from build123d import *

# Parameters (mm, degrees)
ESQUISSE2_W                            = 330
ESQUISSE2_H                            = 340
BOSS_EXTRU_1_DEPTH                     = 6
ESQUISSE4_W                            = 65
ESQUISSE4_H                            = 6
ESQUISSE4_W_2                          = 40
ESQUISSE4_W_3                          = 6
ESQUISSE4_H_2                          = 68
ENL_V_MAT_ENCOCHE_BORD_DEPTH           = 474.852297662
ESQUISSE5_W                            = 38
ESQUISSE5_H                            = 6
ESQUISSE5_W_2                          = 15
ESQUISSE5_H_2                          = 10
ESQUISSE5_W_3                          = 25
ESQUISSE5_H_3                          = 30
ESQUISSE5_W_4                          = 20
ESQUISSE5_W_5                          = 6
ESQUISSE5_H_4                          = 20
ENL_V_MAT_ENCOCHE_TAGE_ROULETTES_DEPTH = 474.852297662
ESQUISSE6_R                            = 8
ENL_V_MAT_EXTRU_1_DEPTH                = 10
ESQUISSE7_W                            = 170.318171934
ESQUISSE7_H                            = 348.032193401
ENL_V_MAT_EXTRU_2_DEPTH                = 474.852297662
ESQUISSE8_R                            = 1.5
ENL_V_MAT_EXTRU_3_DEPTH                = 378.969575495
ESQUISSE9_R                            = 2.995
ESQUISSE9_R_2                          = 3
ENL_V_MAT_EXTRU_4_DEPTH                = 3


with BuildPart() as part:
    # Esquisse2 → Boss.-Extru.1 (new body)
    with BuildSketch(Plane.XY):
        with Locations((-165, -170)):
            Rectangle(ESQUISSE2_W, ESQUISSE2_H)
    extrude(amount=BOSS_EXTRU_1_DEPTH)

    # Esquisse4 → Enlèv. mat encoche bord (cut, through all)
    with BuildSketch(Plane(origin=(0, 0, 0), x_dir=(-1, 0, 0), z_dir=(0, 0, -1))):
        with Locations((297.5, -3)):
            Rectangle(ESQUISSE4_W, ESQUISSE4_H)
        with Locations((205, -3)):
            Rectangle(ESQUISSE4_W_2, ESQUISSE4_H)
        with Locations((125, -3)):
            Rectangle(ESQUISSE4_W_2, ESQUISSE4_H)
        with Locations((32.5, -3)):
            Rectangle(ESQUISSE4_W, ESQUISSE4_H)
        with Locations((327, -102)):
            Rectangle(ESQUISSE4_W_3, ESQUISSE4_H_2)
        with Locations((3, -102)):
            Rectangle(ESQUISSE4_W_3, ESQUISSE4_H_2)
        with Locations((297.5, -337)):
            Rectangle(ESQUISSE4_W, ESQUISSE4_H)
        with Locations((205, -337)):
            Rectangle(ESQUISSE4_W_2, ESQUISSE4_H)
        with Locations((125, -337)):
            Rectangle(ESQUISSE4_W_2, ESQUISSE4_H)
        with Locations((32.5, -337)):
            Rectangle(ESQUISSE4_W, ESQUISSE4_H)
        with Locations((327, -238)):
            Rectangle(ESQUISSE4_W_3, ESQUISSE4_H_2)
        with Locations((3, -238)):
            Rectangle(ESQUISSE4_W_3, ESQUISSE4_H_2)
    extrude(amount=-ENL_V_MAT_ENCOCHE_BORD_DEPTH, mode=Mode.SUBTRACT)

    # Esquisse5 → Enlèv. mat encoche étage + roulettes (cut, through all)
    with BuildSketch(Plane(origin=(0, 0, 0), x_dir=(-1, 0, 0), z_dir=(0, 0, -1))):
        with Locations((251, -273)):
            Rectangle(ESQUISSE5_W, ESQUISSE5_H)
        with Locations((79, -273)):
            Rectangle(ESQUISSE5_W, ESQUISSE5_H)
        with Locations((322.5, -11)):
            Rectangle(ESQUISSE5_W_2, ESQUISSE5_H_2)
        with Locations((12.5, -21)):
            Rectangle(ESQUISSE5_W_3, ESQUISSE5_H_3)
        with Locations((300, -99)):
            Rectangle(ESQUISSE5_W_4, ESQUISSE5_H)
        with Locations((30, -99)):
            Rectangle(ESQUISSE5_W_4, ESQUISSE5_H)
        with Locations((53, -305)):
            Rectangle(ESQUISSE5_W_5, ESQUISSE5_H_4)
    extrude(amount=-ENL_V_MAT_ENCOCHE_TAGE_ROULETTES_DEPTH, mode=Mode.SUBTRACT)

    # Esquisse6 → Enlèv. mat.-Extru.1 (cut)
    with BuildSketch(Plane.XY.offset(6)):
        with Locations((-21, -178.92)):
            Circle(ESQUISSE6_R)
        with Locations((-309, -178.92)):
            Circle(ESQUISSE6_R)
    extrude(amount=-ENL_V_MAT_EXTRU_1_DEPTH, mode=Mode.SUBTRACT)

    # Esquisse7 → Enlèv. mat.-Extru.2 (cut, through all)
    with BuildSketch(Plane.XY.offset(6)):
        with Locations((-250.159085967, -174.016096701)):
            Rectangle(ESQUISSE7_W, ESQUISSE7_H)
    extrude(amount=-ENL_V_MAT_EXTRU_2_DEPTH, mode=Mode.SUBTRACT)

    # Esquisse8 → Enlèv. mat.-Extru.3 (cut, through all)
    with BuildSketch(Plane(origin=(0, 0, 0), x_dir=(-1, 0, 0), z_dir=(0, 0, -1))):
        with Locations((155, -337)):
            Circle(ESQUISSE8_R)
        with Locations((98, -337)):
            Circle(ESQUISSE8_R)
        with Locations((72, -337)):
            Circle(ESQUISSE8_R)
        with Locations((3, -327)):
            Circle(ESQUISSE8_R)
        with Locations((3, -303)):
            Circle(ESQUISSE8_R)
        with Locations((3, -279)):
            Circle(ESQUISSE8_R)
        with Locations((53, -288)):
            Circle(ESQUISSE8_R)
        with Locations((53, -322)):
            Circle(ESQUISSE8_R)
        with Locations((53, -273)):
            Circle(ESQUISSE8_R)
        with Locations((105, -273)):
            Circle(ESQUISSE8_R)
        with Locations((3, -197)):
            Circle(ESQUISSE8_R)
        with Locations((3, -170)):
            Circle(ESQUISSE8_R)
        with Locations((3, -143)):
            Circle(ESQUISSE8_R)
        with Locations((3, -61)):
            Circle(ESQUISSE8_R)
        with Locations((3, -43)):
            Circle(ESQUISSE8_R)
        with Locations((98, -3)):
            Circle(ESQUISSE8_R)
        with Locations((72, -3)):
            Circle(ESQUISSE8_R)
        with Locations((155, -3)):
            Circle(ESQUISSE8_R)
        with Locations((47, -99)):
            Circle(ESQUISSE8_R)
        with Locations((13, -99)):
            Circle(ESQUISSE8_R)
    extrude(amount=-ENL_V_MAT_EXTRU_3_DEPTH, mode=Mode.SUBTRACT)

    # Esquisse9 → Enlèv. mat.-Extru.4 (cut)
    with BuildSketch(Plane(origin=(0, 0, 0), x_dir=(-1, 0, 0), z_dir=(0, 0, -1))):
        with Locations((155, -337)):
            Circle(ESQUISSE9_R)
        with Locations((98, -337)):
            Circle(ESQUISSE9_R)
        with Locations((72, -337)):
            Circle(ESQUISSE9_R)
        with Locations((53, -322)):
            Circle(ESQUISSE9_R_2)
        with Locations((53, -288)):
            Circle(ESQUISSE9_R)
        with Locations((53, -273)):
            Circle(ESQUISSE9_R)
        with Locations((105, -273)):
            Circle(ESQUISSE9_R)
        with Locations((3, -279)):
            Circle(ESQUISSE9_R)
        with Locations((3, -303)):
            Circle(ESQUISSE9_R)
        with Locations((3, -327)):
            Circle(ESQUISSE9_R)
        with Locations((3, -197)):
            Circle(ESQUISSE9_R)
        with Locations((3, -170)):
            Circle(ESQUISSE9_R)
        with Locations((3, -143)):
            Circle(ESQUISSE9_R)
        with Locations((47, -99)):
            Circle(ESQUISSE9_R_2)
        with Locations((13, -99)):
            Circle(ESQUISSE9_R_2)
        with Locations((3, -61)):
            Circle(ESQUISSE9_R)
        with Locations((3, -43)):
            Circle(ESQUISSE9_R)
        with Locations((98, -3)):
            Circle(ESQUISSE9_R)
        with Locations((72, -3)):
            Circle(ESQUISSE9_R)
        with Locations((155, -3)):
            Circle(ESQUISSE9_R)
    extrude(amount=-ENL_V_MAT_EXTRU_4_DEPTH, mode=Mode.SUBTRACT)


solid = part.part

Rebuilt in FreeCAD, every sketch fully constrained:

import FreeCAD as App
import Part
import Sketcher
from FreeCAD import Vector
Q = App.Units.Quantity


def add_polygon(sketch, points):
    """Adds a closed chain of lines whose ends are joined by coincident constraints."""
    first, n = sketch.GeometryCount, len(points)
    for a, b in zip(points, points[1:] + points[:1]):
        sketch.addGeometry(Part.LineSegment(App.Vector(*a, 0), App.Vector(*b, 0)), False)
    for i in range(n):
        sketch.addConstraint(Sketcher.Constraint("Coincident", first + i, 2, first + (i + 1) % n, 1))

doc = App.newDocument("Part")
body = doc.addObject("PartDesign::Body", "Body")

# Sketch on XY plane
sketch1 = body.newObject("Sketcher::SketchObject", "Sketch")
sketch1.AttachmentSupport = (doc.getObject("XY_Plane"), [""])
sketch1.MapMode = "FlatFace"
add_polygon(sketch1, [(-330, 0), (-330, -340), (0, -340), (0, 0)])  # lines 0-3
sketch1.addConstraint(Sketcher.Constraint("Vertical", 0))
sketch1.addConstraint(Sketcher.Constraint("Horizontal", 1))
sketch1.addConstraint(Sketcher.Constraint("Vertical", 2))
sketch1.addConstraint(Sketcher.Constraint("Horizontal", 3))
sketch1.addConstraint(Sketcher.Constraint("Coincident", 2, 2, -1, 1))
sketch1.addConstraint(Sketcher.Constraint("DistanceX", 1, 1, 1, 2, Q("330 mm")))
sketch1.addConstraint(Sketcher.Constraint("DistanceY", 0, 2, 0, 1, Q("340 mm")))
pad1 = body.newObject("PartDesign::Pad", "Pad")
pad1.Profile = sketch1
pad1.Length = 6

# Sketch on XY plane
sketch2 = body.newObject("Sketcher::SketchObject", "Sketch001")
sketch2.AttachmentSupport = (doc.getObject("XY_Plane"), [""])
sketch2.MapMode = "FlatFace"
add_polygon(sketch2, [(-265, 0), (-265, -6), (-330, -6), (-330, 0)])  # lines 0-3
add_polygon(sketch2, [(-185, 0), (-185, -6), (-225, -6), (-225, 0)])  # lines 4-7
add_polygon(sketch2, [(-105, 0), (-105, -6), (-145, -6), (-145, 0)])  # lines 8-11
add_polygon(sketch2, [(0, 0), (0, -6), (-65, -6), (-65, 0)])  # lines 12-15
add_polygon(sketch2, [(-324, -68), (-324, -136), (-330, -136), (-330, -68)])  # lines 16-19
add_polygon(sketch2, [(0, -68), (0, -136), (-6, -136), (-6, -68)])  # lines 20-23
add_polygon(sketch2, [(-265, -334), (-265, -340), (-330, -340), (-330, -334)])  # lines 24-27
add_polygon(sketch2, [(-185, -334), (-185, -340), (-225, -340), (-225, -334)])  # lines 28-31
add_polygon(sketch2, [(-105, -334), (-105, -340), (-145, -340), (-145, -334)])  # lines 32-35
add_polygon(sketch2, [(0, -334), (0, -340), (-65, -340), (-65, -334)])  # lines 36-39
add_polygon(sketch2, [(-324, -204), (-324, -272), (-330, -272), (-330, -204)])  # lines 40-43
add_polygon(sketch2, [(0, -204), (0, -272), (-6, -272), (-6, -204)])  # lines 44-47
sketch2.addConstraint(Sketcher.Constraint("Vertical", 0))
sketch2.addConstraint(Sketcher.Constraint("Horizontal", 1))
sketch2.addConstraint(Sketcher.Constraint("Vertical", 2))
sketch2.addConstraint(Sketcher.Constraint("Horizontal", 3))
sketch2.addConstraint(Sketcher.Constraint("Vertical", 4))
sketch2.addConstraint(Sketcher.Constraint("Horizontal", 5))
sketch2.addConstraint(Sketcher.Constraint("Vertical", 6))
sketch2.addConstraint(Sketcher.Constraint("Horizontal", 7))
sketch2.addConstraint(Sketcher.Constraint("Vertical", 8))
sketch2.addConstraint(Sketcher.Constraint("Horizontal", 9))
sketch2.addConstraint(Sketcher.Constraint("Vertical", 10))
sketch2.addConstraint(Sketcher.Constraint("Horizontal", 11))
sketch2.addConstraint(Sketcher.Constraint("Vertical", 12))
sketch2.addConstraint(Sketcher.Constraint("Horizontal", 13))
sketch2.addConstraint(Sketcher.Constraint("Vertical", 14))
sketch2.addConstraint(Sketcher.Constraint("Horizontal", 15))
sketch2.addConstraint(Sketcher.Constraint("Vertical", 16))
sketch2.addConstraint(Sketcher.Constraint("Horizontal", 17))
sketch2.addConstraint(Sketcher.Constraint("Vertical", 18))
sketch2.addConstraint(Sketcher.Constraint("Horizontal", 19))
sketch2.addConstraint(Sketcher.Constraint("Vertical", 20))
sketch2.addConstraint(Sketcher.Constraint("Horizontal", 21))
sketch2.addConstraint(Sketcher.Constraint("Vertical", 22))
sketch2.addConstraint(Sketcher.Constraint("Horizontal", 23))
sketch2.addConstraint(Sketcher.Constraint("Vertical", 24))
sketch2.addConstraint(Sketcher.Constraint("Horizontal", 25))
sketch2.addConstraint(Sketcher.Constraint("Vertical", 26))
sketch2.addConstraint(Sketcher.Constraint("Horizontal", 27))
sketch2.addConstraint(Sketcher.Constraint("Vertical", 28))
sketch2.addConstraint(Sketcher.Constraint("Horizontal", 29))
sketch2.addConstraint(Sketcher.Constraint("Vertical", 30))
sketch2.addConstraint(Sketcher.Constraint("Horizontal", 31))
sketch2.addConstraint(Sketcher.Constraint("Vertical", 32))
sketch2.addConstraint(Sketcher.Constraint("Horizontal", 33))
sketch2.addConstraint(Sketcher.Constraint("Vertical", 34))
sketch2.addConstraint(Sketcher.Constraint("Horizontal", 35))
sketch2.addConstraint(Sketcher.Constraint("Vertical", 36))
sketch2.addConstraint(Sketcher.Constraint("Horizontal", 37))
sketch2.addConstraint(Sketcher.Constraint("Vertical", 38))
sketch2.addConstraint(Sketcher.Constraint("Horizontal", 39))
sketch2.addConstraint(Sketcher.Constraint("Vertical", 40))
sketch2.addConstraint(Sketcher.Constraint("Horizontal", 41))
sketch2.addConstraint(Sketcher.Constraint("Vertical", 42))
sketch2.addConstraint(Sketcher.Constraint("Horizontal", 43))
sketch2.addConstraint(Sketcher.Constraint("Vertical", 44))
sketch2.addConstraint(Sketcher.Constraint("Horizontal", 45))
sketch2.addConstraint(Sketcher.Constraint("Vertical", 46))
sketch2.addConstraint(Sketcher.Constraint("Horizontal", 47))
sketch2.addConstraint(Sketcher.Constraint("Coincident", 15, 2, -1, 1))
sketch2.addConstraint(Sketcher.Constraint("PointOnObject", 2, 2, -1))
sketch2.addConstraint(Sketcher.Constraint("PointOnObject", 6, 2, -1))
sketch2.addConstraint(Sketcher.Constraint("PointOnObject", 10, 2, -1))
sketch2.addConstraint(Sketcher.Constraint("PointOnObject", 20, 2, -2))
sketch2.addConstraint(Sketcher.Constraint("PointOnObject", 36, 2, -2))
sketch2.addConstraint(Sketcher.Constraint("PointOnObject", 44, 2, -2))
sketch2.addConstraint(Sketcher.Constraint("Horizontal", 1, 2, 4, 2))
sketch2.addConstraint(Sketcher.Constraint("Horizontal", 5, 2, 8, 2))
sketch2.addConstraint(Sketcher.Constraint("Horizontal", 9, 2, 12, 2))
sketch2.addConstraint(Sketcher.Constraint("Horizontal", 17, 2, 20, 2))
sketch2.addConstraint(Sketcher.Constraint("Horizontal", 19, 2, 22, 2))
sketch2.addConstraint(Sketcher.Constraint("Horizontal", 25, 2, 28, 2))
sketch2.addConstraint(Sketcher.Constraint("Horizontal", 27, 2, 30, 2))
sketch2.addConstraint(Sketcher.Constraint("Horizontal", 29, 2, 32, 2))
sketch2.addConstraint(Sketcher.Constraint("Horizontal", 31, 2, 34, 2))
sketch2.addConstraint(Sketcher.Constraint("Horizontal", 33, 2, 36, 2))
sketch2.addConstraint(Sketcher.Constraint("Horizontal", 35, 2, 38, 2))
sketch2.addConstraint(Sketcher.Constraint("Horizontal", 41, 2, 44, 2))
sketch2.addConstraint(Sketcher.Constraint("Horizontal", 43, 2, 46, 2))
sketch2.addConstraint(Sketcher.Constraint("Vertical", 2, 2, 17, 2))
sketch2.addConstraint(Sketcher.Constraint("Vertical", 3, 2, 24, 2))
sketch2.addConstraint(Sketcher.Constraint("Vertical", 18, 2, 25, 2))
sketch2.addConstraint(Sketcher.Constraint("Vertical", 7, 2, 28, 2))
sketch2.addConstraint(Sketcher.Constraint("Vertical", 6, 2, 29, 2))
sketch2.addConstraint(Sketcher.Constraint("Vertical", 11, 2, 32, 2))
sketch2.addConstraint(Sketcher.Constraint("Vertical", 10, 2, 33, 2))
sketch2.addConstraint(Sketcher.Constraint("Vertical", 14, 2, 37, 2))
sketch2.addConstraint(Sketcher.Constraint("Vertical", 19, 2, 40, 2))
sketch2.addConstraint(Sketcher.Constraint("Vertical", 26, 2, 41, 2))
sketch2.addConstraint(Sketcher.Constraint("Vertical", 22, 2, 45, 2))
sketch2.addConstraint(Sketcher.Constraint("Equal", 7, 9))
sketch2.addConstraint(Sketcher.Constraint("Equal", 3, 13))
sketch2.addConstraint(Sketcher.Constraint("Equal", 19, 21))
sketch2.addConstraint(Sketcher.Constraint("Equal", 47, 0))
sketch2.addConstraint(Sketcher.Constraint("Equal", 14, 24))
sketch2.addConstraint(Sketcher.Constraint("Equal", 22, 40))
sketch2.addConstraint(Sketcher.Constraint("DistanceX", 1, 2, 1, 1, Q("65 mm")))
sketch2.addConstraint(Sketcher.Constraint("DistanceX", 5, 2, 5, 1, Q("40 mm")))
sketch2.addConstraint(Sketcher.Constraint("DistanceX", 17, 2, 17, 1, Q("6 mm")))
sketch2.addConstraint(Sketcher.Constraint("DistanceY", 16, 2, 16, 1, Q("68 mm")))
sketch2.addConstraint(Sketcher.Constraint("DistanceX", 0, 2, -1, 1, Q("265 mm")))
sketch2.addConstraint(Sketcher.Constraint("DistanceX", 4, 2, -1, 1, Q("185 mm")))
sketch2.addConstraint(Sketcher.Constraint("DistanceX", 8, 2, -1, 1, Q("105 mm")))
sketch2.addConstraint(Sketcher.Constraint("DistanceY", 16, 2, -1, 1, Q("136 mm")))
sketch2.addConstraint(Sketcher.Constraint("DistanceY", 24, 2, -1, 1, Q("340 mm")))
sketch2.addConstraint(Sketcher.Constraint("DistanceY", 40, 2, -1, 1, Q("272 mm")))
pocket1 = body.newObject("PartDesign::Pocket", "Pocket")
pocket1.Profile = sketch2
pocket1.Type = "ThroughAll"
pocket1.Reversed = True

# Sketch on XY plane
sketch3 = body.newObject("Sketcher::SketchObject", "Sketch002")
sketch3.AttachmentSupport = (doc.getObject("XY_Plane"), [""])
sketch3.MapMode = "FlatFace"
add_polygon(sketch3, [(-232, -270), (-232, -276), (-270, -276), (-270, -270)])  # lines 0-3
add_polygon(sketch3, [(-60, -270), (-60, -276), (-98, -276), (-98, -270)])  # lines 4-7
add_polygon(sketch3, [(-315, -6), (-315, -16), (-330, -16), (-330, -6)])  # lines 8-11
add_polygon(sketch3, [(0, -6), (0, -36), (-25, -36), (-25, -6)])  # lines 12-15
add_polygon(sketch3, [(-290, -96), (-290, -102), (-310, -102), (-310, -96)])  # lines 16-19
add_polygon(sketch3, [(-20, -96), (-20, -102), (-40, -102), (-40, -96)])  # lines 20-23
add_polygon(sketch3, [(-50, -295), (-50, -315), (-56, -315), (-56, -295)])  # lines 24-27
sketch3.addConstraint(Sketcher.Constraint("Vertical", 0))
sketch3.addConstraint(Sketcher.Constraint("Horizontal", 1))
sketch3.addConstraint(Sketcher.Constraint("Vertical", 2))
sketch3.addConstraint(Sketcher.Constraint("Horizontal", 3))
sketch3.addConstraint(Sketcher.Constraint("Vertical", 4))
sketch3.addConstraint(Sketcher.Constraint("Horizontal", 5))
sketch3.addConstraint(Sketcher.Constraint("Vertical", 6))
sketch3.addConstraint(Sketcher.Constraint("Horizontal", 7))
sketch3.addConstraint(Sketcher.Constraint("Vertical", 8))
sketch3.addConstraint(Sketcher.Constraint("Horizontal", 9))
sketch3.addConstraint(Sketcher.Constraint("Vertical", 10))
sketch3.addConstraint(Sketcher.Constraint("Horizontal", 11))
sketch3.addConstraint(Sketcher.Constraint("Vertical", 12))
sketch3.addConstraint(Sketcher.Constraint("Horizontal", 13))
sketch3.addConstraint(Sketcher.Constraint("Vertical", 14))
sketch3.addConstraint(Sketcher.Constraint("Horizontal", 15))
sketch3.addConstraint(Sketcher.Constraint("Vertical", 16))
sketch3.addConstraint(Sketcher.Constraint("Horizontal", 17))
sketch3.addConstraint(Sketcher.Constraint("Vertical", 18))
sketch3.addConstraint(Sketcher.Constraint("Horizontal", 19))
sketch3.addConstraint(Sketcher.Constraint("Vertical", 20))
sketch3.addConstraint(Sketcher.Constraint("Horizontal", 21))
sketch3.addConstraint(Sketcher.Constraint("Vertical", 22))
sketch3.addConstraint(Sketcher.Constraint("Horizontal", 23))
sketch3.addConstraint(Sketcher.Constraint("Vertical", 24))
sketch3.addConstraint(Sketcher.Constraint("Horizontal", 25))
sketch3.addConstraint(Sketcher.Constraint("Vertical", 26))
sketch3.addConstraint(Sketcher.Constraint("Horizontal", 27))
sketch3.addConstraint(Sketcher.Constraint("PointOnObject", 12, 2, -2))
sketch3.addConstraint(Sketcher.Constraint("Horizontal", 1, 2, 4, 2))
sketch3.addConstraint(Sketcher.Constraint("Horizontal", 3, 2, 6, 2))
sketch3.addConstraint(Sketcher.Constraint("Horizontal", 11, 2, 14, 2))
sketch3.addConstraint(Sketcher.Constraint("Horizontal", 17, 2, 20, 2))
sketch3.addConstraint(Sketcher.Constraint("Horizontal", 19, 2, 22, 2))
sketch3.addConstraint(Sketcher.Constraint("Equal", 3, 5))
sketch3.addConstraint(Sketcher.Constraint("Equal", 19, 21))
sketch3.addConstraint(Sketcher.Constraint("Equal", 27, 0))
sketch3.addConstraint(Sketcher.Constraint("Equal", 6, 16))
sketch3.addConstraint(Sketcher.Constraint("Equal", 23, 24))
sketch3.addConstraint(Sketcher.Constraint("DistanceX", 1, 2, 1, 1, Q("38 mm")))
sketch3.addConstraint(Sketcher.Constraint("DistanceX", 9, 2, 9, 1, Q("15 mm")))
sketch3.addConstraint(Sketcher.Constraint("DistanceX", 13, 2, 13, 1, Q("25 mm")))
sketch3.addConstraint(Sketcher.Constraint("DistanceX", 17, 2, 17, 1, Q("20 mm")))
sketch3.addConstraint(Sketcher.Constraint("DistanceX", 25, 2, 25, 1, Q("6 mm")))
sketch3.addConstraint(Sketcher.Constraint("DistanceY", 8, 2, 8, 1, Q("10 mm")))
sketch3.addConstraint(Sketcher.Constraint("DistanceY", 12, 2, 12, 1, Q("30 mm")))
sketch3.addConstraint(Sketcher.Constraint("DistanceX", 0, 2, -1, 1, Q("232 mm")))
sketch3.addConstraint(Sketcher.Constraint("DistanceY", 0, 2, -1, 1, Q("276 mm")))
sketch3.addConstraint(Sketcher.Constraint("DistanceX", 4, 2, -1, 1, Q("60 mm")))
sketch3.addConstraint(Sketcher.Constraint("DistanceX", 8, 2, -1, 1, Q("315 mm")))
sketch3.addConstraint(Sketcher.Constraint("DistanceY", 8, 2, -1, 1, Q("16 mm")))
sketch3.addConstraint(Sketcher.Constraint("DistanceX", 16, 2, -1, 1, Q("290 mm")))
sketch3.addConstraint(Sketcher.Constraint("DistanceY", 16, 2, -1, 1, Q("102 mm")))
sketch3.addConstraint(Sketcher.Constraint("DistanceX", 20, 2, -1, 1, Q("20 mm")))
sketch3.addConstraint(Sketcher.Constraint("DistanceX", 24, 2, -1, 1, Q("50 mm")))
sketch3.addConstraint(Sketcher.Constraint("DistanceY", 24, 2, -1, 1, Q("315 mm")))
pocket2 = body.newObject("PartDesign::Pocket", "Pocket001")
pocket2.Profile = sketch3
pocket2.Type = "ThroughAll"
pocket2.Reversed = True

# Sketch on XY plane
sketch4 = body.newObject("Sketcher::SketchObject", "Sketch003")
sketch4.AttachmentSupport = (doc.getObject("XY_Plane"), [""])
sketch4.MapMode = "FlatFace"
sketch4.AttachmentOffset = App.Placement(Vector(0, 0, 6), App.Rotation())
sketch4.addGeometry(Part.Circle(Vector(-21, -179, 0), Vector(0, 0, 1), 8), False)
sketch4.addGeometry(Part.Circle(Vector(-309, -179, 0), Vector(0, 0, 1), 8), False)
sketch4.addConstraint(Sketcher.Constraint("Equal", 0, 1))
sketch4.addConstraint(Sketcher.Constraint("Horizontal", 0, 3, 1, 3))
sketch4.addConstraint(Sketcher.Constraint("Diameter", 0, Q("16 mm")))
sketch4.addConstraint(Sketcher.Constraint("DistanceX", 0, 3, -1, 1, Q("21 mm")))
sketch4.addConstraint(Sketcher.Constraint("DistanceX", 1, 3, -1, 1, Q("309 mm")))
sketch4.addConstraint(Sketcher.Constraint("DistanceY", 0, 3, -1, 1, Q("178.92 mm")))
pocket3 = body.newObject("PartDesign::Pocket", "Pocket002")
pocket3.Profile = sketch4
pocket3.Length = 10

# Sketch on XY plane
sketch5 = body.newObject("Sketcher::SketchObject", "Sketch004")
sketch5.AttachmentSupport = (doc.getObject("XY_Plane"), [""])
sketch5.MapMode = "FlatFace"
sketch5.AttachmentOffset = App.Placement(Vector(0, 0, 6), App.Rotation())
add_polygon(sketch5, [(-335, 0), (-335, -348), (-165, -348), (-165, 0)])  # lines 0-3
sketch5.addConstraint(Sketcher.Constraint("Vertical", 0))
sketch5.addConstraint(Sketcher.Constraint("Horizontal", 1))
sketch5.addConstraint(Sketcher.Constraint("Vertical", 2))
sketch5.addConstraint(Sketcher.Constraint("Horizontal", 3))
sketch5.addConstraint(Sketcher.Constraint("PointOnObject", 2, 2, -1))
sketch5.addConstraint(Sketcher.Constraint("DistanceX", 1, 2, -1, 1, Q("165 mm")))
sketch5.addConstraint(Sketcher.Constraint("DistanceX", 1, 1, 1, 2, Q("170.318172 mm")))
sketch5.addConstraint(Sketcher.Constraint("DistanceY", 0, 2, 0, 1, Q("348.032193 mm")))
pocket4 = body.newObject("PartDesign::Pocket", "Pocket003")
pocket4.Profile = sketch5
pocket4.Type = "ThroughAll"

# Sketch on XY plane
sketch6 = body.newObject("Sketcher::SketchObject", "Sketch005")
sketch6.AttachmentSupport = (doc.getObject("XY_Plane"), [""])
sketch6.MapMode = "FlatFace"
sketch6.addGeometry(Part.Circle(Vector(-155, -337, 0), Vector(0, 0, 1), 1.5), False)
sketch6.addGeometry(Part.Circle(Vector(-98, -337, 0), Vector(0, 0, 1), 1.5), False)
sketch6.addGeometry(Part.Circle(Vector(-72, -337, 0), Vector(0, 0, 1), 1.5), False)
sketch6.addGeometry(Part.Circle(Vector(-3, -327, 0), Vector(0, 0, 1), 1.5), False)
sketch6.addGeometry(Part.Circle(Vector(-3, -303, 0), Vector(0, 0, 1), 1.5), False)
sketch6.addGeometry(Part.Circle(Vector(-3, -279, 0), Vector(0, 0, 1), 1.5), False)
sketch6.addGeometry(Part.Circle(Vector(-53, -288, 0), Vector(0, 0, 1), 1.5), False)
sketch6.addGeometry(Part.Circle(Vector(-53, -322, 0), Vector(0, 0, 1), 1.5), False)
sketch6.addGeometry(Part.Circle(Vector(-53, -273, 0), Vector(0, 0, 1), 1.5), False)
sketch6.addGeometry(Part.Circle(Vector(-105, -273, 0), Vector(0, 0, 1), 1.5), False)
sketch6.addGeometry(Part.Circle(Vector(-3, -197, 0), Vector(0, 0, 1), 1.5), False)
sketch6.addGeometry(Part.Circle(Vector(-3, -170, 0), Vector(0, 0, 1), 1.5), False)
sketch6.addGeometry(Part.Circle(Vector(-3, -143, 0), Vector(0, 0, 1), 1.5), False)
sketch6.addGeometry(Part.Circle(Vector(-3, -61, 0), Vector(0, 0, 1), 1.5), False)
sketch6.addGeometry(Part.Circle(Vector(-3, -43, 0), Vector(0, 0, 1), 1.5), False)
sketch6.addGeometry(Part.Circle(Vector(-98, -3, 0), Vector(0, 0, 1), 1.5), False)
sketch6.addGeometry(Part.Circle(Vector(-72, -3, 0), Vector(0, 0, 1), 1.5), False)
sketch6.addGeometry(Part.Circle(Vector(-155, -3, 0), Vector(0, 0, 1), 1.5), False)
sketch6.addGeometry(Part.Circle(Vector(-47, -99, 0), Vector(0, 0, 1), 1.5), False)
sketch6.addGeometry(Part.Circle(Vector(-13, -99, 0), Vector(0, 0, 1), 1.5), False)
sketch6.addConstraint(Sketcher.Constraint("Equal", 0, 1))
sketch6.addConstraint(Sketcher.Constraint("Equal", 1, 2))
sketch6.addConstraint(Sketcher.Constraint("Equal", 2, 3))
sketch6.addConstraint(Sketcher.Constraint("Equal", 3, 4))
sketch6.addConstraint(Sketcher.Constraint("Equal", 4, 5))
sketch6.addConstraint(Sketcher.Constraint("Equal", 5, 6))
sketch6.addConstraint(Sketcher.Constraint("Equal", 6, 7))
sketch6.addConstraint(Sketcher.Constraint("Equal", 7, 8))
sketch6.addConstraint(Sketcher.Constraint("Equal", 8, 9))
sketch6.addConstraint(Sketcher.Constraint("Equal", 9, 10))
sketch6.addConstraint(Sketcher.Constraint("Equal", 10, 11))
sketch6.addConstraint(Sketcher.Constraint("Equal", 11, 12))
sketch6.addConstraint(Sketcher.Constraint("Equal", 12, 13))
sketch6.addConstraint(Sketcher.Constraint("Equal", 13, 14))
sketch6.addConstraint(Sketcher.Constraint("Equal", 14, 15))
sketch6.addConstraint(Sketcher.Constraint("Equal", 15, 16))
sketch6.addConstraint(Sketcher.Constraint("Equal", 16, 17))
sketch6.addConstraint(Sketcher.Constraint("Equal", 17, 18))
sketch6.addConstraint(Sketcher.Constraint("Equal", 18, 19))
sketch6.addConstraint(Sketcher.Constraint("Horizontal", 0, 3, 1, 3))
sketch6.addConstraint(Sketcher.Constraint("Horizontal", 1, 3, 2, 3))
sketch6.addConstraint(Sketcher.Constraint("Horizontal", 8, 3, 9, 3))
sketch6.addConstraint(Sketcher.Constraint("Horizontal", 15, 3, 16, 3))
sketch6.addConstraint(Sketcher.Constraint("Horizontal", 16, 3, 17, 3))
sketch6.addConstraint(Sketcher.Constraint("Horizontal", 18, 3, 19, 3))
sketch6.addConstraint(Sketcher.Constraint("Vertical", 3, 3, 4, 3))
sketch6.addConstraint(Sketcher.Constraint("Vertical", 4, 3, 5, 3))
sketch6.addConstraint(Sketcher.Constraint("Vertical", 6, 3, 7, 3))
sketch6.addConstraint(Sketcher.Constraint("Vertical", 7, 3, 8, 3))
sketch6.addConstraint(Sketcher.Constraint("Vertical", 5, 3, 10, 3))
sketch6.addConstraint(Sketcher.Constraint("Vertical", 10, 3, 11, 3))
sketch6.addConstraint(Sketcher.Constraint("Vertical", 11, 3, 12, 3))
sketch6.addConstraint(Sketcher.Constraint("Vertical", 12, 3, 13, 3))
sketch6.addConstraint(Sketcher.Constraint("Vertical", 13, 3, 14, 3))
sketch6.addConstraint(Sketcher.Constraint("Vertical", 1, 3, 15, 3))
sketch6.addConstraint(Sketcher.Constraint("Vertical", 2, 3, 16, 3))
sketch6.addConstraint(Sketcher.Constraint("Vertical", 0, 3, 17, 3))
sketch6.addConstraint(Sketcher.Constraint("Diameter", 0, Q("3 mm")))
sketch6.addConstraint(Sketcher.Constraint("DistanceX", 0, 3, -1, 1, Q("155 mm")))
sketch6.addConstraint(Sketcher.Constraint("DistanceY", 0, 3, -1, 1, Q("337 mm")))
sketch6.addConstraint(Sketcher.Constraint("DistanceX", 1, 3, -1, 1, Q("98 mm")))
sketch6.addConstraint(Sketcher.Constraint("DistanceX", 2, 3, -1, 1, Q("72 mm")))
sketch6.addConstraint(Sketcher.Constraint("DistanceX", 3, 3, -1, 1, Q("3 mm")))
sketch6.addConstraint(Sketcher.Constraint("DistanceY", 3, 3, -1, 1, Q("327 mm")))
sketch6.addConstraint(Sketcher.Constraint("DistanceY", 4, 3, -1, 1, Q("303 mm")))
sketch6.addConstraint(Sketcher.Constraint("DistanceY", 5, 3, -1, 1, Q("279 mm")))
sketch6.addConstraint(Sketcher.Constraint("DistanceX", 6, 3, -1, 1, Q("53 mm")))
sketch6.addConstraint(Sketcher.Constraint("DistanceY", 6, 3, -1, 1, Q("288 mm")))
sketch6.addConstraint(Sketcher.Constraint("DistanceY", 7, 3, -1, 1, Q("322 mm")))
sketch6.addConstraint(Sketcher.Constraint("DistanceY", 8, 3, -1, 1, Q("273 mm")))
sketch6.addConstraint(Sketcher.Constraint("DistanceX", 9, 3, -1, 1, Q("105 mm")))
sketch6.addConstraint(Sketcher.Constraint("DistanceY", 10, 3, -1, 1, Q("197 mm")))
sketch6.addConstraint(Sketcher.Constraint("DistanceY", 11, 3, -1, 1, Q("170 mm")))
sketch6.addConstraint(Sketcher.Constraint("DistanceY", 12, 3, -1, 1, Q("143 mm")))
sketch6.addConstraint(Sketcher.Constraint("DistanceY", 13, 3, -1, 1, Q("61 mm")))
sketch6.addConstraint(Sketcher.Constraint("DistanceY", 14, 3, -1, 1, Q("43 mm")))
sketch6.addConstraint(Sketcher.Constraint("DistanceY", 15, 3, -1, 1, Q("3 mm")))
sketch6.addConstraint(Sketcher.Constraint("DistanceX", 18, 3, -1, 1, Q("47 mm")))
sketch6.addConstraint(Sketcher.Constraint("DistanceY", 18, 3, -1, 1, Q("99 mm")))
sketch6.addConstraint(Sketcher.Constraint("DistanceX", 19, 3, -1, 1, Q("13 mm")))
pocket5 = body.newObject("PartDesign::Pocket", "Pocket004")
pocket5.Profile = sketch6
pocket5.Type = "ThroughAll"
pocket5.Reversed = True

# Sketch on XY plane
sketch7 = body.newObject("Sketcher::SketchObject", "Sketch006")
sketch7.AttachmentSupport = (doc.getObject("XY_Plane"), [""])
sketch7.MapMode = "FlatFace"
sketch7.addGeometry(Part.Circle(Vector(-155, -337, 0), Vector(0, 0, 1), 3), False)
sketch7.addGeometry(Part.Circle(Vector(-98, -337, 0), Vector(0, 0, 1), 3), False)
sketch7.addGeometry(Part.Circle(Vector(-72, -337, 0), Vector(0, 0, 1), 3), False)
sketch7.addGeometry(Part.Circle(Vector(-53, -322, 0), Vector(0, 0, 1), 3), False)
sketch7.addGeometry(Part.Circle(Vector(-53, -288, 0), Vector(0, 0, 1), 3), False)
sketch7.addGeometry(Part.Circle(Vector(-53, -273, 0), Vector(0, 0, 1), 3), False)
sketch7.addGeometry(Part.Circle(Vector(-105, -273, 0), Vector(0, 0, 1), 3), False)
sketch7.addGeometry(Part.Circle(Vector(-3, -279, 0), Vector(0, 0, 1), 3), False)
sketch7.addGeometry(Part.Circle(Vector(-3, -303, 0), Vector(0, 0, 1), 3), False)
sketch7.addGeometry(Part.Circle(Vector(-3, -327, 0), Vector(0, 0, 1), 3), False)
sketch7.addGeometry(Part.Circle(Vector(-3, -197, 0), Vector(0, 0, 1), 3), False)
sketch7.addGeometry(Part.Circle(Vector(-3, -170, 0), Vector(0, 0, 1), 3), False)
sketch7.addGeometry(Part.Circle(Vector(-3, -143, 0), Vector(0, 0, 1), 3), False)
sketch7.addGeometry(Part.Circle(Vector(-47, -99, 0), Vector(0, 0, 1), 3), False)
sketch7.addGeometry(Part.Circle(Vector(-13, -99, 0), Vector(0, 0, 1), 3), False)
sketch7.addGeometry(Part.Circle(Vector(-3, -61, 0), Vector(0, 0, 1), 3), False)
sketch7.addGeometry(Part.Circle(Vector(-3, -43, 0), Vector(0, 0, 1), 3), False)
sketch7.addGeometry(Part.Circle(Vector(-98, -3, 0), Vector(0, 0, 1), 3), False)
sketch7.addGeometry(Part.Circle(Vector(-72, -3, 0), Vector(0, 0, 1), 3), False)
sketch7.addGeometry(Part.Circle(Vector(-155, -3, 0), Vector(0, 0, 1), 3), False)
sketch7.addConstraint(Sketcher.Constraint("Equal", 0, 1))
sketch7.addConstraint(Sketcher.Constraint("Equal", 1, 2))
sketch7.addConstraint(Sketcher.Constraint("Equal", 2, 4))
sketch7.addConstraint(Sketcher.Constraint("Equal", 4, 5))
sketch7.addConstraint(Sketcher.Constraint("Equal", 5, 6))
sketch7.addConstraint(Sketcher.Constraint("Equal", 6, 7))
sketch7.addConstraint(Sketcher.Constraint("Equal", 7, 8))
sketch7.addConstraint(Sketcher.Constraint("Equal", 8, 9))
sketch7.addConstraint(Sketcher.Constraint("Equal", 9, 10))
sketch7.addConstraint(Sketcher.Constraint("Equal", 10, 11))
sketch7.addConstraint(Sketcher.Constraint("Equal", 11, 12))
sketch7.addConstraint(Sketcher.Constraint("Equal", 3, 13))
sketch7.addConstraint(Sketcher.Constraint("Equal", 13, 14))
sketch7.addConstraint(Sketcher.Constraint("Equal", 12, 15))
sketch7.addConstraint(Sketcher.Constraint("Equal", 15, 16))
sketch7.addConstraint(Sketcher.Constraint("Equal", 16, 17))
sketch7.addConstraint(Sketcher.Constraint("Equal", 17, 18))
sketch7.addConstraint(Sketcher.Constraint("Equal", 18, 19))
sketch7.addConstraint(Sketcher.Constraint("Horizontal", 0, 3, 1, 3))
sketch7.addConstraint(Sketcher.Constraint("Horizontal", 1, 3, 2, 3))
sketch7.addConstraint(Sketcher.Constraint("Horizontal", 5, 3, 6, 3))
sketch7.addConstraint(Sketcher.Constraint("Horizontal", 13, 3, 14, 3))
sketch7.addConstraint(Sketcher.Constraint("Horizontal", 17, 3, 18, 3))
sketch7.addConstraint(Sketcher.Constraint("Horizontal", 18, 3, 19, 3))
sketch7.addConstraint(Sketcher.Constraint("Vertical", 3, 3, 4, 3))
sketch7.addConstraint(Sketcher.Constraint("Vertical", 4, 3, 5, 3))
sketch7.addConstraint(Sketcher.Constraint("Vertical", 7, 3, 8, 3))
sketch7.addConstraint(Sketcher.Constraint("Vertical", 8, 3, 9, 3))
sketch7.addConstraint(Sketcher.Constraint("Vertical", 9, 3, 10, 3))
sketch7.addConstraint(Sketcher.Constraint("Vertical", 10, 3, 11, 3))
sketch7.addConstraint(Sketcher.Constraint("Vertical", 11, 3, 12, 3))
sketch7.addConstraint(Sketcher.Constraint("Vertical", 12, 3, 15, 3))
sketch7.addConstraint(Sketcher.Constraint("Vertical", 15, 3, 16, 3))
sketch7.addConstraint(Sketcher.Constraint("Vertical", 1, 3, 17, 3))
sketch7.addConstraint(Sketcher.Constraint("Vertical", 2, 3, 18, 3))
sketch7.addConstraint(Sketcher.Constraint("Vertical", 0, 3, 19, 3))
sketch7.addConstraint(Sketcher.Constraint("Diameter", 3, Q("6 mm")))
sketch7.addConstraint(Sketcher.Constraint("Diameter", 0, Q("5.99 mm")))
sketch7.addConstraint(Sketcher.Constraint("DistanceX", 0, 3, -1, 1, Q("155 mm")))
sketch7.addConstraint(Sketcher.Constraint("DistanceY", 0, 3, -1, 1, Q("337 mm")))
sketch7.addConstraint(Sketcher.Constraint("DistanceX", 1, 3, -1, 1, Q("98 mm")))
sketch7.addConstraint(Sketcher.Constraint("DistanceX", 2, 3, -1, 1, Q("72 mm")))
sketch7.addConstraint(Sketcher.Constraint("DistanceX", 3, 3, -1, 1, Q("53 mm")))
sketch7.addConstraint(Sketcher.Constraint("DistanceY", 3, 3, -1, 1, Q("322 mm")))
sketch7.addConstraint(Sketcher.Constraint("DistanceY", 4, 3, -1, 1, Q("288 mm")))
sketch7.addConstraint(Sketcher.Constraint("DistanceY", 5, 3, -1, 1, Q("273 mm")))
sketch7.addConstraint(Sketcher.Constraint("DistanceX", 6, 3, -1, 1, Q("105 mm")))
sketch7.addConstraint(Sketcher.Constraint("DistanceX", 7, 3, -1, 1, Q("3 mm")))
sketch7.addConstraint(Sketcher.Constraint("DistanceY", 7, 3, -1, 1, Q("279 mm")))
sketch7.addConstraint(Sketcher.Constraint("DistanceY", 8, 3, -1, 1, Q("303 mm")))
sketch7.addConstraint(Sketcher.Constraint("DistanceY", 9, 3, -1, 1, Q("327 mm")))
sketch7.addConstraint(Sketcher.Constraint("DistanceY", 10, 3, -1, 1, Q("197 mm")))
sketch7.addConstraint(Sketcher.Constraint("DistanceY", 11, 3, -1, 1, Q("170 mm")))
sketch7.addConstraint(Sketcher.Constraint("DistanceY", 12, 3, -1, 1, Q("143 mm")))
sketch7.addConstraint(Sketcher.Constraint("DistanceX", 13, 3, -1, 1, Q("47 mm")))
sketch7.addConstraint(Sketcher.Constraint("DistanceY", 13, 3, -1, 1, Q("99 mm")))
sketch7.addConstraint(Sketcher.Constraint("DistanceX", 14, 3, -1, 1, Q("13 mm")))
sketch7.addConstraint(Sketcher.Constraint("DistanceY", 15, 3, -1, 1, Q("61 mm")))
sketch7.addConstraint(Sketcher.Constraint("DistanceY", 16, 3, -1, 1, Q("43 mm")))
sketch7.addConstraint(Sketcher.Constraint("DistanceY", 17, 3, -1, 1, Q("3 mm")))
pocket6 = body.newObject("PartDesign::Pocket", "Pocket005")
pocket6.Profile = sketch7
pocket6.Length = 3
pocket6.Reversed = True

doc.recompute()
